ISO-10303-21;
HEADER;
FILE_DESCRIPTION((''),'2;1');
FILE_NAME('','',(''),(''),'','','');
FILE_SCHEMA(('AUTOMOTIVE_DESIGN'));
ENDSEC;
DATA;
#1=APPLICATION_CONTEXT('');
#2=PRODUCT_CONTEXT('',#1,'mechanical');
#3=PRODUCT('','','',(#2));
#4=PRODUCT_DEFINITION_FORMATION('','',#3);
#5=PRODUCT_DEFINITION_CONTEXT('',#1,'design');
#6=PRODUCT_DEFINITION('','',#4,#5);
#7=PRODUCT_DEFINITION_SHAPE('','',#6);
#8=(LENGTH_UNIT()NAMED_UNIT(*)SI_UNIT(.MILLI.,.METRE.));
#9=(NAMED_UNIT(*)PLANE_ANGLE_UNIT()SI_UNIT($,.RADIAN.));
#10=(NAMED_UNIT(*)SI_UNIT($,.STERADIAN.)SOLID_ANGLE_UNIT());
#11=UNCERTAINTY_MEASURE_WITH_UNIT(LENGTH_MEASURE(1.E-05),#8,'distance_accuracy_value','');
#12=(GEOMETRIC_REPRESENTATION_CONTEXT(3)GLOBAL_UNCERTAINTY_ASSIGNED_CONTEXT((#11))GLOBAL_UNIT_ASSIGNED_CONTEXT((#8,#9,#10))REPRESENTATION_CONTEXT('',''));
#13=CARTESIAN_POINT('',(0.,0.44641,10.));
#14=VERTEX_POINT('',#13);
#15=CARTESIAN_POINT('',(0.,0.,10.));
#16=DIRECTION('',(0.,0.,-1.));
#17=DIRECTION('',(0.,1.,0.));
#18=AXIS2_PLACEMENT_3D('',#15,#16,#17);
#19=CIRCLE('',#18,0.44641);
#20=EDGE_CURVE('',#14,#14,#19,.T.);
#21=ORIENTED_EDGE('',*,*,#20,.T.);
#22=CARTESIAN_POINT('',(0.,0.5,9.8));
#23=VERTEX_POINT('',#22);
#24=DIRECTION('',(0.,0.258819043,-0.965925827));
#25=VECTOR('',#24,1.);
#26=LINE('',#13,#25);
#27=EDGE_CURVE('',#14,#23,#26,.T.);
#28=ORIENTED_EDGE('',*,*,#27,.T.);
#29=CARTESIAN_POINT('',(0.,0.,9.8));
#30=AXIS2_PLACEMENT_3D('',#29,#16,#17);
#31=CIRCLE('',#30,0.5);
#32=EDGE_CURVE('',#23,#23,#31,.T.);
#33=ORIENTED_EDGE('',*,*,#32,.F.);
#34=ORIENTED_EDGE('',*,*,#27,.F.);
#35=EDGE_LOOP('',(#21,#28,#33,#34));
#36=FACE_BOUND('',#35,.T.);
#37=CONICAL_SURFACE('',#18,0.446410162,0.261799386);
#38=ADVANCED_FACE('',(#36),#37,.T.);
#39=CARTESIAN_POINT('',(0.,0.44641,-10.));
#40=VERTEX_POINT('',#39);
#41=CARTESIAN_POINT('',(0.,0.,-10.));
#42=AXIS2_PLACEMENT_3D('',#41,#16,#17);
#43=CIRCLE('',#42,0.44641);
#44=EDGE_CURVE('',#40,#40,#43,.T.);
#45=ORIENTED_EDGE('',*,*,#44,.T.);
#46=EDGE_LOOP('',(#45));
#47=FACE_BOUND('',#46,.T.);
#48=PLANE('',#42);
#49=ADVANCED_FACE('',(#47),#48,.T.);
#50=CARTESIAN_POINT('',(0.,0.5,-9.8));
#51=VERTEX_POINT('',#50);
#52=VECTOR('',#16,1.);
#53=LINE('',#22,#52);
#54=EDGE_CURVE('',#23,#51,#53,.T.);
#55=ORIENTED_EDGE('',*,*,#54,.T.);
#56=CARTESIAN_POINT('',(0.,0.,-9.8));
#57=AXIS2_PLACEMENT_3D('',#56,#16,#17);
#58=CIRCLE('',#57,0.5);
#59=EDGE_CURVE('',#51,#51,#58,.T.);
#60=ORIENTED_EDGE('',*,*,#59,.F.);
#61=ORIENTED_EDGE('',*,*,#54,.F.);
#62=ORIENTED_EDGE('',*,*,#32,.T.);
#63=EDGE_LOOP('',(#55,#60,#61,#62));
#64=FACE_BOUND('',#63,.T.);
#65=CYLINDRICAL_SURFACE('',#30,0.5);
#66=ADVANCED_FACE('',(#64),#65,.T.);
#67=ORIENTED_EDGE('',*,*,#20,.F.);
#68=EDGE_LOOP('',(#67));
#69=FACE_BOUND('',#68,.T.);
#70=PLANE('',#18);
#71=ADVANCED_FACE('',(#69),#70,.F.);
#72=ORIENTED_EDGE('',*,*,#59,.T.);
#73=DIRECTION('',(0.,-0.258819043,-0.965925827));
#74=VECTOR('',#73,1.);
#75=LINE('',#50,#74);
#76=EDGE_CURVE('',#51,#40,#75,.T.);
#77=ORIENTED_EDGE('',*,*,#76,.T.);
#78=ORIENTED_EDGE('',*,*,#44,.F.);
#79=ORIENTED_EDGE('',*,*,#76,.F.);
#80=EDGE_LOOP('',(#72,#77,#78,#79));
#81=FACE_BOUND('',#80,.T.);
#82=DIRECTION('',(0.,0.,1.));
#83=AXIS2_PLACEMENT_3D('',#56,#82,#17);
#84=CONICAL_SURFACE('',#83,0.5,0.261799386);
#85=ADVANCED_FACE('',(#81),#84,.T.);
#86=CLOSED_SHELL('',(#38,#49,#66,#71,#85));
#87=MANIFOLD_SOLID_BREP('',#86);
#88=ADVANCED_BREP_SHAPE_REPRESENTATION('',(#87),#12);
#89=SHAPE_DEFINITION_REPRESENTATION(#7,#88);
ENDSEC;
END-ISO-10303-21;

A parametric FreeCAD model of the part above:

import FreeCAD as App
import Part
import Sketcher

V = App.Vector
Q = App.Units.Quantity

doc = App.newDocument("Part")
body = doc.addObject("PartDesign::Body", "Body")

sketch1 = body.newObject("Sketcher::SketchObject", "Sketch")
sketch1.AttachmentSupport = (doc.getObject("YZ_Plane"), [""])
sketch1.MapMode = "FlatFace"
sketch1.addGeometry(Part.LineSegment(V(0.45, 10, 0), V(0, 10, 0)), False)
sketch1.addGeometry(Part.LineSegment(V(0, 10, 0), V(0, -10, 0)), False)
sketch1.addGeometry(Part.LineSegment(V(0, -10, 0), V(0.45, -10, 0)), False)
sketch1.addGeometry(Part.LineSegment(V(0.45, -10, 0), V(0.5, -9.8, 0)), False)
sketch1.addGeometry(Part.LineSegment(V(0.5, -9.8, 0), V(0.5, 9.8, 0)), False)
sketch1.addGeometry(Part.LineSegment(V(0.5, 9.8, 0), V(0.45, 10, 0)), False)
sketch1.addConstraint(Sketcher.Constraint("Coincident", 0, 2, 1, 1))
sketch1.addConstraint(Sketcher.Constraint("Coincident", 1, 2, 2, 1))
sketch1.addConstraint(Sketcher.Constraint("Coincident", 2, 2, 3, 1))
sketch1.addConstraint(Sketcher.Constraint("Coincident", 3, 2, 4, 1))
sketch1.addConstraint(Sketcher.Constraint("Coincident", 4, 2, 5, 1))
sketch1.addConstraint(Sketcher.Constraint("Coincident", 5, 2, 0, 1))
sketch1.addConstraint(Sketcher.Constraint("Horizontal", 0))
sketch1.addConstraint(Sketcher.Constraint("Vertical", 1))
sketch1.addConstraint(Sketcher.Constraint("Horizontal", 2))
sketch1.addConstraint(Sketcher.Constraint("Vertical", 4))
sketch1.addConstraint(Sketcher.Constraint("Symmetric", 0, 2, 1, 2, -1, 1))
sketch1.addConstraint(Sketcher.Constraint("Vertical", 2, 2, 5, 2))
sketch1.addConstraint(Sketcher.Constraint("Equal", 3, 5))
sketch1.addConstraint(Sketcher.Constraint("DistanceY", 1, 2, 1, 1, 20.0))
sketch1.addConstraint(Sketcher.Constraint("Angle", 3, Q("75 deg")))
sketch1.addConstraint(Sketcher.Constraint("DistanceY", 4, 1, 4, 2, 19.6))
sketch1.addConstraint(Sketcher.Constraint("DistanceX", -1, 1, 3, 2, 0.5))
revolution = body.newObject("PartDesign::Revolution", "Revolution")
revolution.Profile = sketch1
revolution.ReferenceAxis = (sketch1, ["V_Axis"])
revolution.Angle = 360

doc.recompute()
